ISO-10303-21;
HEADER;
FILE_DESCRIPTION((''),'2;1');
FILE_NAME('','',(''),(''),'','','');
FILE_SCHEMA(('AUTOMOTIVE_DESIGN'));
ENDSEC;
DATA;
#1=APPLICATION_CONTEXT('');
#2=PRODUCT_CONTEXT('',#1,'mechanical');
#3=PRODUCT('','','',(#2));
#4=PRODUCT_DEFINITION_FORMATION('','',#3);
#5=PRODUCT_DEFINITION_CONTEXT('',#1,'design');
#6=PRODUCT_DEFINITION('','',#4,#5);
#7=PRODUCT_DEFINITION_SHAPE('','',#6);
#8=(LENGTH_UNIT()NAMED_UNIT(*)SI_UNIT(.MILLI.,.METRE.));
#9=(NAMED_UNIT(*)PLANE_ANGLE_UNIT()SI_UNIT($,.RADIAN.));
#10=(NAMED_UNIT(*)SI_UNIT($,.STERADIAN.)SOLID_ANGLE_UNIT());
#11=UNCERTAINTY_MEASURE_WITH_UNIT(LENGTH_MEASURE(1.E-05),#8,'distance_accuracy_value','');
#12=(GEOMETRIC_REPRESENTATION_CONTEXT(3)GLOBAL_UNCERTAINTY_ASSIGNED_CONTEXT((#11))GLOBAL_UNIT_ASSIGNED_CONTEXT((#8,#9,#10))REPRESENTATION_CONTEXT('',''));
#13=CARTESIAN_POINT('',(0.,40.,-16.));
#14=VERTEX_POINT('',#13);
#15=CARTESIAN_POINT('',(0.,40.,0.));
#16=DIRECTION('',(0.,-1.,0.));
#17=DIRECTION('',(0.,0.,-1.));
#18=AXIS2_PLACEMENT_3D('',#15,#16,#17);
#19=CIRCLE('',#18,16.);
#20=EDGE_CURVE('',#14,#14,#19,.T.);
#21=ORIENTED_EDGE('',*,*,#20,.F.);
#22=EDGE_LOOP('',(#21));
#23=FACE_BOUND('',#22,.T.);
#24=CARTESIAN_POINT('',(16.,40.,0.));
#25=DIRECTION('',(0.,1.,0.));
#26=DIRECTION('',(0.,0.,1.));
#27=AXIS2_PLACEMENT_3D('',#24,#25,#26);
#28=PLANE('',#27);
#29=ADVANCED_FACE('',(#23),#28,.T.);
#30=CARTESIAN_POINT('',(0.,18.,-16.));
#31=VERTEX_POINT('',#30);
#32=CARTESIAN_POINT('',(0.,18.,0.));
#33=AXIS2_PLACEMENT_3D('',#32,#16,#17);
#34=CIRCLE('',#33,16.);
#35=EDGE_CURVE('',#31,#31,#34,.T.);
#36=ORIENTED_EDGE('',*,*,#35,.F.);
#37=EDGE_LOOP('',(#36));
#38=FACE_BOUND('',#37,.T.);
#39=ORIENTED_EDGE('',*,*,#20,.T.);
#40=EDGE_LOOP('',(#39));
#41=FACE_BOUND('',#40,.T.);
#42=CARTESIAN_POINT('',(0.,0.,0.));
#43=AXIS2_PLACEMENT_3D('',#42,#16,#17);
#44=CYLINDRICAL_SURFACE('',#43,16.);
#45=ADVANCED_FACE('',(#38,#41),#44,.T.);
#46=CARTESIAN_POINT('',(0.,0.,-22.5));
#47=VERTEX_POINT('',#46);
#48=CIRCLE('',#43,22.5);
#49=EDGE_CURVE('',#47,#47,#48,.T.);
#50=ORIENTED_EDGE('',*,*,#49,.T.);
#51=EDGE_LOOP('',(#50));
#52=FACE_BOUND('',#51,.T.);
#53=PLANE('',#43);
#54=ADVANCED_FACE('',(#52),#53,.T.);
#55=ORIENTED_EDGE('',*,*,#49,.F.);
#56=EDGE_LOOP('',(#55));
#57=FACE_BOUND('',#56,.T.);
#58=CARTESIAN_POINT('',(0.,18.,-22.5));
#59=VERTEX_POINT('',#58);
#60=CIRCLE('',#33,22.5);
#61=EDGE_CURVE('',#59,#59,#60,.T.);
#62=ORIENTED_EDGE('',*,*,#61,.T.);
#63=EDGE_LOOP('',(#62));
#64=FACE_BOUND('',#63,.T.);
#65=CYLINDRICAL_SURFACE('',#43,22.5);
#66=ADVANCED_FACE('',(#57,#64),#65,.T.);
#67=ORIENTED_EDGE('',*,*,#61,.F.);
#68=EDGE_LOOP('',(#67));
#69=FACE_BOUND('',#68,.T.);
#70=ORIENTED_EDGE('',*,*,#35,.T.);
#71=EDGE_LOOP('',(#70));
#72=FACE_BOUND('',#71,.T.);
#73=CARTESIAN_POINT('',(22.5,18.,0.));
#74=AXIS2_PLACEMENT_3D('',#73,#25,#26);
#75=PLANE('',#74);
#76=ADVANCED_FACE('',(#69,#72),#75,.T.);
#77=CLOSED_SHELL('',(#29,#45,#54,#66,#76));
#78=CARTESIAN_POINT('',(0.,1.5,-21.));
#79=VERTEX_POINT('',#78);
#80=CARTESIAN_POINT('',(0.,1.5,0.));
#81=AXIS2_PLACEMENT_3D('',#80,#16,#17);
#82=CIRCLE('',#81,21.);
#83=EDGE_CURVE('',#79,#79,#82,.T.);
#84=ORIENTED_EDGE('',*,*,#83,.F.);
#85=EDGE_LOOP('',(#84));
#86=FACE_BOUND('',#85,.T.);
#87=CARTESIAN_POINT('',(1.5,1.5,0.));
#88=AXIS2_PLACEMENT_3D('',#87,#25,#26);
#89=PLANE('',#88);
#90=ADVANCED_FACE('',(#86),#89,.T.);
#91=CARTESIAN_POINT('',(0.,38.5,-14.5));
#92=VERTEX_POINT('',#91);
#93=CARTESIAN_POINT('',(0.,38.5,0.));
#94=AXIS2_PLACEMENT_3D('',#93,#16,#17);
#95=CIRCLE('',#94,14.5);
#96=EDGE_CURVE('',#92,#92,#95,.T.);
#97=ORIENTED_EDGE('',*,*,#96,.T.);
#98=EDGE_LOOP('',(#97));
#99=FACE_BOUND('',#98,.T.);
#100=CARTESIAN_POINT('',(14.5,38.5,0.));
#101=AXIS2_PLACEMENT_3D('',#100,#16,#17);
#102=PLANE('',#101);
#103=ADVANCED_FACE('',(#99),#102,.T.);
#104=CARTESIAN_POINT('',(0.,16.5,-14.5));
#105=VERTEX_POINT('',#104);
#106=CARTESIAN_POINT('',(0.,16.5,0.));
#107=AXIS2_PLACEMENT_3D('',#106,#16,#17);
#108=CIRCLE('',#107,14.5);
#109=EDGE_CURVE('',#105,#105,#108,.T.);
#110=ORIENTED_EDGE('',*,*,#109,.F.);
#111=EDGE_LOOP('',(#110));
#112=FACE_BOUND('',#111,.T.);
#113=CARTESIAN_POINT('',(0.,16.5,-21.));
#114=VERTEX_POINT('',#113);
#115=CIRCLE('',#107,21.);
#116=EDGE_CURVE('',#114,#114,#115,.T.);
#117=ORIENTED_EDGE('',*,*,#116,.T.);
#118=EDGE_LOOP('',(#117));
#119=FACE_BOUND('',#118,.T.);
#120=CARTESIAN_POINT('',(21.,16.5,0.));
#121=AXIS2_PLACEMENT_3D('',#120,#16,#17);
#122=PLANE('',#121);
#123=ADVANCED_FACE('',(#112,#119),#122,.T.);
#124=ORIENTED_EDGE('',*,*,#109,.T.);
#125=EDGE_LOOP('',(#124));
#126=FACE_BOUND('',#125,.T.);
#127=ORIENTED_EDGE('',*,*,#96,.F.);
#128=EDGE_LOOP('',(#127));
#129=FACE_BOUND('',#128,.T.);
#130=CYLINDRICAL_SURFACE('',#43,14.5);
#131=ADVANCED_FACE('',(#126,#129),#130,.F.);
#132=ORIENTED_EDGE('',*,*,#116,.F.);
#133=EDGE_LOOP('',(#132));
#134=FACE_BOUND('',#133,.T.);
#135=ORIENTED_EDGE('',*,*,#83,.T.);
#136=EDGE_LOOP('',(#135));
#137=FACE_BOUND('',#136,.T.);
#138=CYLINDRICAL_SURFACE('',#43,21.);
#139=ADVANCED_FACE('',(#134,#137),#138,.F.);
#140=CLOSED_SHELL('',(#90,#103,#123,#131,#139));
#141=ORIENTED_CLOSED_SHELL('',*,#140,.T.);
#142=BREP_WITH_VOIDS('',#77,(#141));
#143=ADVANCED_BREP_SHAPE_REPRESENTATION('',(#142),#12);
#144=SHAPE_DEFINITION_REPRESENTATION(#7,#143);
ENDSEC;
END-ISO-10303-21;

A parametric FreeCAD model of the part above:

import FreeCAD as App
import Part
import Sketcher

V = App.Vector

doc = App.newDocument("Part")
body = doc.addObject("PartDesign::Body", "Body")

sketch1 = doc.addObject("Sketcher::SketchObject", "Sketch")
body.addObject(sketch1)
sketch1.AttachmentSupport = (doc.XY_Plane, [""])
sketch1.MapMode = "FlatFace"
sketch1.addGeometry([
    Part.LineSegment(V(0, 0, 0), V(22.5, 0, 0)),
    Part.LineSegment(V(22.5, 0, 0), V(22.5, 18, 0)),
    Part.LineSegment(V(22.5, 18, 0), V(16, 18, 0)),
    Part.LineSegment(V(16, 18, 0), V(16, 40, 0)),
    Part.LineSegment(V(16, 40, 0), V(0, 40, 0)),
    Part.LineSegment(V(0, 40, 0), V(0, 38.5, 0)),
    Part.LineSegment(V(0, 38.5, 0), V(14.5, 38.5, 0)),
    Part.LineSegment(V(14.5, 38.5, 0), V(14.5, 16.5, 0)),
    Part.LineSegment(V(14.5, 16.5, 0), V(21, 16.5, 0)),
    Part.LineSegment(V(21, 16.5, 0), V(21, 1.5, 0)),
    Part.LineSegment(V(21, 1.5, 0), V(0, 1.5, 0)),
    Part.LineSegment(V(0, 1.5, 0), V(0, 0, 0)),
], False)
sketch1.addConstraint([
    Sketcher.Constraint("Coincident", 0, 2, 1, 1),
    Sketcher.Constraint("Coincident", 1, 2, 2, 1),
    Sketcher.Constraint("Coincident", 2, 2, 3, 1),
    Sketcher.Constraint("Coincident", 3, 2, 4, 1),
    Sketcher.Constraint("Coincident", 4, 2, 5, 1),
    Sketcher.Constraint("Coincident", 5, 2, 6, 1),
    Sketcher.Constraint("Coincident", 6, 2, 7, 1),
    Sketcher.Constraint("Coincident", 7, 2, 8, 1),
    Sketcher.Constraint("Coincident", 8, 2, 9, 1),
    Sketcher.Constraint("Coincident", 9, 2, 10, 1),
    Sketcher.Constraint("Coincident", 10, 2, 11, 1),
    Sketcher.Constraint("Coincident", 11, 2, 0, 1),
    Sketcher.Constraint("Horizontal", 0),
    Sketcher.Constraint("Vertical", 1),
    Sketcher.Constraint("Horizontal", 2),
    Sketcher.Constraint("Vertical", 3),
    Sketcher.Constraint("Horizontal", 4),
    Sketcher.Constraint("Vertical", 5),
    Sketcher.Constraint("Horizontal", 6),
    Sketcher.Constraint("Vertical", 7),
    Sketcher.Constraint("Horizontal", 8),
    Sketcher.Constraint("Vertical", 9),
    Sketcher.Constraint("Horizontal", 10),
    Sketcher.Constraint("Vertical", 11),
    Sketcher.Constraint("Coincident", 11, 2, -1, 1),
    Sketcher.Constraint("PointOnObject", 4, 2, -2),
    Sketcher.Constraint("Equal", 2, 8),
    Sketcher.Constraint("Equal", 3, 7),
    Sketcher.Constraint("Equal", 5, 11),
    Sketcher.Constraint("DistanceX", 4, 2, 4, 1, 16.0),
    Sketcher.Constraint("DistanceX", 10, 2, 10, 1, 21.0),
    Sketcher.Constraint("DistanceY", 1, 1, 1, 2, 18.0),
    Sketcher.Constraint("DistanceY", 3, 1, 3, 2, 22.0),
    Sketcher.Constraint("DistanceY", 9, 2, 9, 1, 15.0),
    Sketcher.Constraint("DistanceX", 0, 1, 0, 2, 22.5),
])
revolution = doc.addObject("PartDesign::Revolution", "Revolution")
body.addObject(revolution)
revolution.Profile = sketch1
revolution.ReferenceAxis = (sketch1, ["V_Axis"])
revolution.Angle = 360

doc.recompute()
